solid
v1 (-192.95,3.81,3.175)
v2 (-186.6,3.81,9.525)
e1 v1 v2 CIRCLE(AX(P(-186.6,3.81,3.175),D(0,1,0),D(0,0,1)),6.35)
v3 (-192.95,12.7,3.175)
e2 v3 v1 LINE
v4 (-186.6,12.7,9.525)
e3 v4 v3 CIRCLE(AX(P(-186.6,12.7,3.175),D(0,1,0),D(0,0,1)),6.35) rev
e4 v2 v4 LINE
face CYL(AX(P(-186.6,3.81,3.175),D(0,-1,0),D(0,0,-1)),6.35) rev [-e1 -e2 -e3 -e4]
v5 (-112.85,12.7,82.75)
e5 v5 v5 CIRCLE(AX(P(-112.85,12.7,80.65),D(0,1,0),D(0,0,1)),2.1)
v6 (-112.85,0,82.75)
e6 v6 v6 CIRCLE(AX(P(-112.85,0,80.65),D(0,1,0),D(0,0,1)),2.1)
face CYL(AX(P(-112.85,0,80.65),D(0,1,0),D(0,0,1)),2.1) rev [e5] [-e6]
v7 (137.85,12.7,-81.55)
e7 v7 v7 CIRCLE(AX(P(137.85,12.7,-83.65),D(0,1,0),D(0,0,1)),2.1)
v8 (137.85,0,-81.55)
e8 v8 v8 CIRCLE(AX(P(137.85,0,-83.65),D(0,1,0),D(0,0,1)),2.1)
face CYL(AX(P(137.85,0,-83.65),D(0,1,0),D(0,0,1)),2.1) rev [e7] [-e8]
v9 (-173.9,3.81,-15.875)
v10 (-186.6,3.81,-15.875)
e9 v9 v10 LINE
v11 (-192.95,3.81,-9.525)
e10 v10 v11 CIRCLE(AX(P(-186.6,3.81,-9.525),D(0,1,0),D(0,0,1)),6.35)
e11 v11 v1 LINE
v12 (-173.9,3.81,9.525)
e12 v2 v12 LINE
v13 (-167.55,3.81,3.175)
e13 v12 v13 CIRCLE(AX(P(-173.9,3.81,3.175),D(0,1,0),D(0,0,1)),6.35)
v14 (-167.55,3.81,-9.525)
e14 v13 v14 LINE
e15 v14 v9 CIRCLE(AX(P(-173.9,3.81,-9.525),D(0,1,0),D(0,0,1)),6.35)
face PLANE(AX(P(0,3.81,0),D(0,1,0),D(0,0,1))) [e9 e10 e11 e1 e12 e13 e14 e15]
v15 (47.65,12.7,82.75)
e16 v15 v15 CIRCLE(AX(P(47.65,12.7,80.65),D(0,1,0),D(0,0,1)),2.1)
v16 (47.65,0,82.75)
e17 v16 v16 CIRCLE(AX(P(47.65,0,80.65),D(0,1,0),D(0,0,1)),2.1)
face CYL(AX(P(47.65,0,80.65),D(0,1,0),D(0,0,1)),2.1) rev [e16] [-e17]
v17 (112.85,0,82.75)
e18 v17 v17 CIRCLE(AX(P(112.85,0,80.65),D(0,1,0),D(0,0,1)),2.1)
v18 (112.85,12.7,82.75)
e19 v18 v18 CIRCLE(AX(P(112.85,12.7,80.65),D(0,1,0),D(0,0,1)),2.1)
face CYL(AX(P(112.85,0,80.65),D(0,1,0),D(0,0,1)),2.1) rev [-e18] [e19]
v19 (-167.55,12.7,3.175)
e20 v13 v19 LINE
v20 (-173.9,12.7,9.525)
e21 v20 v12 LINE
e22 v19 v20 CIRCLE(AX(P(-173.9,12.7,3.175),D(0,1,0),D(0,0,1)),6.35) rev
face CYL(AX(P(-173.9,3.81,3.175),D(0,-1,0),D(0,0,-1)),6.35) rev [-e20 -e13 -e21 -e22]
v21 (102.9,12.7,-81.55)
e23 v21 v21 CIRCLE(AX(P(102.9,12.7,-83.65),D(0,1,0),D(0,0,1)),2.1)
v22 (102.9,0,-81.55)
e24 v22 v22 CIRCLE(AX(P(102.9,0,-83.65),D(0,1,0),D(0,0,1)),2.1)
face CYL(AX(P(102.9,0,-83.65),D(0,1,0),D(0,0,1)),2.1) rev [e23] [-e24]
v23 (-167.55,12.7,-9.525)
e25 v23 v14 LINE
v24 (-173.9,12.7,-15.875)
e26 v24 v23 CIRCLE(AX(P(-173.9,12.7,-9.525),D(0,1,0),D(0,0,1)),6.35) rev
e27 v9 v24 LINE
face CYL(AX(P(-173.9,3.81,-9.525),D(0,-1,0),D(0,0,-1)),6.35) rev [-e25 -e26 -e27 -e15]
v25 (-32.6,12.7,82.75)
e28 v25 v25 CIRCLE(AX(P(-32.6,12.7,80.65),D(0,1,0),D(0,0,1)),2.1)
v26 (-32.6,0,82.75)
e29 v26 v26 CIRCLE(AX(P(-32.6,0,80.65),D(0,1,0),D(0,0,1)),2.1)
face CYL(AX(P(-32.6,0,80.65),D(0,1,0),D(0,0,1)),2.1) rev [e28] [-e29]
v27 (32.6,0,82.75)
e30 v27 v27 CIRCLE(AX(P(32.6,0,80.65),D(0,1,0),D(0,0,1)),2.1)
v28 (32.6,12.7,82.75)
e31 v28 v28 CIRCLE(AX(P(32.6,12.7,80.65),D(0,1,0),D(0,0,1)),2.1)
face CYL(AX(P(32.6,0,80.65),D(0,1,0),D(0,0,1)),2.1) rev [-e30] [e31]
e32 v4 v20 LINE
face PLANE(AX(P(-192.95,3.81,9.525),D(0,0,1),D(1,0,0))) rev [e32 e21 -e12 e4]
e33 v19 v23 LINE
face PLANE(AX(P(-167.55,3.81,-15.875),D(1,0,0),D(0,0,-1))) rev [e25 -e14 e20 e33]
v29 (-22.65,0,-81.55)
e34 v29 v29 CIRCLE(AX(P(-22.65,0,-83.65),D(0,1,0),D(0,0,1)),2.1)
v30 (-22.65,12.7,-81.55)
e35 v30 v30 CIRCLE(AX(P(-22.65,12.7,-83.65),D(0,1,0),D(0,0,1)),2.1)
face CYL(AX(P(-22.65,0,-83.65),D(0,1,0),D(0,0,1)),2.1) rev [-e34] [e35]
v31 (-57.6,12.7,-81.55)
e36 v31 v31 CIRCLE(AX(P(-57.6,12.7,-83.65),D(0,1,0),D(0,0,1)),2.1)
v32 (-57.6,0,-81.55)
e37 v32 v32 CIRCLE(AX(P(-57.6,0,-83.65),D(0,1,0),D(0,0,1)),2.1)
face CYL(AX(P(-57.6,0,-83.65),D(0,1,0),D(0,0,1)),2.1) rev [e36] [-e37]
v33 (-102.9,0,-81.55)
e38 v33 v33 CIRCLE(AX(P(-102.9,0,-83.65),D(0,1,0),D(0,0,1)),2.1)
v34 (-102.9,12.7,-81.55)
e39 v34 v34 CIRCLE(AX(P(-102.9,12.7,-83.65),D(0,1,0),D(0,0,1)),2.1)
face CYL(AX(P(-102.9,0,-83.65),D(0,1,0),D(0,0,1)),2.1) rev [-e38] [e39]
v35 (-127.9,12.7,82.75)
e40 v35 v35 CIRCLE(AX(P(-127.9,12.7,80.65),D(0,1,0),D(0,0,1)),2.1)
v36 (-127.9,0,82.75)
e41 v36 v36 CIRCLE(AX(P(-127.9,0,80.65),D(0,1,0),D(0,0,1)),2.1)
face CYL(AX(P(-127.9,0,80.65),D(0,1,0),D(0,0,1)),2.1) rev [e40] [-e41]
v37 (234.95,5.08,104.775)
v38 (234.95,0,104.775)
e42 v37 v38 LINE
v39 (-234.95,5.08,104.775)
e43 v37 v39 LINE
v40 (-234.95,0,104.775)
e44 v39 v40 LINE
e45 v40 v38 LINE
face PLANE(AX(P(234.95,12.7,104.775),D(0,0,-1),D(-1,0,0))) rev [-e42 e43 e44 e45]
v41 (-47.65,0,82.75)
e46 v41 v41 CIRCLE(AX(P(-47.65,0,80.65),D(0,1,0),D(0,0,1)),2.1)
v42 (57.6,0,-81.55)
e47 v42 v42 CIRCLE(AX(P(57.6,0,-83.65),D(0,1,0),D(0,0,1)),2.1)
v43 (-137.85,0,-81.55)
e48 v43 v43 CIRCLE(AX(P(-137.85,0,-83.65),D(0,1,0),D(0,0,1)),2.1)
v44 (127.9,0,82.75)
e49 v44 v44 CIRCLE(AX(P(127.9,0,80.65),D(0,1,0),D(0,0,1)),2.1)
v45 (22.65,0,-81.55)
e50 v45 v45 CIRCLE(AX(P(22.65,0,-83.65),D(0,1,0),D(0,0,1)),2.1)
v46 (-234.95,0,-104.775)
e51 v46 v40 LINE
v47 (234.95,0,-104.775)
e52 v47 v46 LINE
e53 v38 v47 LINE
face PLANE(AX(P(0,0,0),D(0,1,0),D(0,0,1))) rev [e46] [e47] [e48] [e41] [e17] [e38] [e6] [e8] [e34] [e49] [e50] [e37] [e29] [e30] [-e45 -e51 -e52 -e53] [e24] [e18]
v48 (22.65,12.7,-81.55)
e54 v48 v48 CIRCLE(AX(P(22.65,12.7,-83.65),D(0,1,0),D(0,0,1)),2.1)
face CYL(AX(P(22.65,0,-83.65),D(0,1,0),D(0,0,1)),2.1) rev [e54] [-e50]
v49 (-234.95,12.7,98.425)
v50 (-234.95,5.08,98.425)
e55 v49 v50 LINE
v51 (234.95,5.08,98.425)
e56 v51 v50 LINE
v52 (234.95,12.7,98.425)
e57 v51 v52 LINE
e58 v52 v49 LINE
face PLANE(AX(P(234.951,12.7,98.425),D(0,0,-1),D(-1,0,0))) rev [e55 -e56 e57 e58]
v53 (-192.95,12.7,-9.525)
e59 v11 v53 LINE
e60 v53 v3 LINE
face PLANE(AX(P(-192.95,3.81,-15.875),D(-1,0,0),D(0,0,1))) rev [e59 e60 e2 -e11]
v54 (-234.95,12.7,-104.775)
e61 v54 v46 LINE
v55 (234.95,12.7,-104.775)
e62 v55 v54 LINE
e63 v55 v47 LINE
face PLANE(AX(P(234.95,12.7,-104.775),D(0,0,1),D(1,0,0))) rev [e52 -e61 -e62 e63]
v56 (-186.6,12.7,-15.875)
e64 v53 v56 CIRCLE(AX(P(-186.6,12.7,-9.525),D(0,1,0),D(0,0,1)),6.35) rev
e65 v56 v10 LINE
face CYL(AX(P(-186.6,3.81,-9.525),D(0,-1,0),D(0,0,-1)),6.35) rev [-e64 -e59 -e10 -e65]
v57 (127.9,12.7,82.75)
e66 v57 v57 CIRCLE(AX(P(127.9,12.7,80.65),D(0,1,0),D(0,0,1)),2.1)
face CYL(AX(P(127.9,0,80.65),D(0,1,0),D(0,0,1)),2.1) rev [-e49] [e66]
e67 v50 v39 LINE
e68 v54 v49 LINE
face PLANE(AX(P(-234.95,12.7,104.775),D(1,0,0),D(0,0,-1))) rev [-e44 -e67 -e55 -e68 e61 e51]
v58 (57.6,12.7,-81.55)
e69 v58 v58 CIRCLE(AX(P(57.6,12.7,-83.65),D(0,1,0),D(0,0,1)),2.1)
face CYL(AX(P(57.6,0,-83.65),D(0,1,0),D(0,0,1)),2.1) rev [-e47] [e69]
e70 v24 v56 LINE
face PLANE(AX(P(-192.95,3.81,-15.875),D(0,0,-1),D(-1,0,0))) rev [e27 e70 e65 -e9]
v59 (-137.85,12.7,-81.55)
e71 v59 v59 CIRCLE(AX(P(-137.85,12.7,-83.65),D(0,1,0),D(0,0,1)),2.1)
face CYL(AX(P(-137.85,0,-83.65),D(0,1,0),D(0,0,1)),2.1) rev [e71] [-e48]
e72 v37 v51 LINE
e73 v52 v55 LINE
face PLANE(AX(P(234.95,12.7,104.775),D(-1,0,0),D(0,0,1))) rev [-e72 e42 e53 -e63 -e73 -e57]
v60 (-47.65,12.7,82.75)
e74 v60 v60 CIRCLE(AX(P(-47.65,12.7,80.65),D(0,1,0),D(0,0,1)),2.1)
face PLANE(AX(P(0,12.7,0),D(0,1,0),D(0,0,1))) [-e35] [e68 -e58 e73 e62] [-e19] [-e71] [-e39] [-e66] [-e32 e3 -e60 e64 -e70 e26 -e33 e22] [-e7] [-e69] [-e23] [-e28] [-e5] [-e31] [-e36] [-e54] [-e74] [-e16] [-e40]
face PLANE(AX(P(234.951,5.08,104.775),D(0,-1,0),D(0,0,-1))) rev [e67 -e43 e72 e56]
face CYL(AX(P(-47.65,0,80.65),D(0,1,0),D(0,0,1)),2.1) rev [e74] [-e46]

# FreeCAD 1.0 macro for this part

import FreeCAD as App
import Part
import Sketcher

V = App.Vector
Q = App.Units.Quantity


def edges_at(feature, points):
    """Names of the edges that pass closest to the given points."""
    edges = feature.Shape.Edges
    near = lambda p: min(range(len(edges)), key=lambda i: edges[i].distToShape(Part.Vertex(*p))[0])
    return sorted({f"Edge{near(p) + 1}" for p in points})


def add_polygon(sketch, points):
    """Adds a closed chain of lines whose ends are joined by coincident constraints."""
    first, n = sketch.GeometryCount, len(points)
    for a, b in zip(points, points[1:] + points[:1]):
        sketch.addGeometry(Part.LineSegment(App.Vector(*a, 0), App.Vector(*b, 0)), False)
    for i in range(n):
        sketch.addConstraint(Sketcher.Constraint("Coincident", first + i, 2, first + (i + 1) % n, 1))

doc = App.newDocument("Part")
body = doc.addObject("PartDesign::Body", "Body")

# Sketch on XZ plane
sketch1 = doc.addObject("Sketcher::SketchObject", "Sketch")
body.addObject(sketch1)
sketch1.AttachmentSupport = (doc.XZ_Plane, [""])
sketch1.MapMode = "FlatFace"
add_polygon(sketch1, [(-235, -105), (-235, 105), (235, 105), (235, -105)])  # lines 0-3
sketch1.addConstraint([
    Sketcher.Constraint("Vertical", 0),
    Sketcher.Constraint("Horizontal", 1),
    Sketcher.Constraint("Vertical", 2),
    Sketcher.Constraint("Horizontal", 3),
    Sketcher.Constraint("Symmetric", 0, 2, 2, 2, -1, 1),
    Sketcher.Constraint("DistanceX", 1, 1, 1, 2, Q("18.5 in")),
    Sketcher.Constraint("DistanceY", 0, 1, 0, 2, Q("8.25 in")),
])
pad1 = doc.addObject("PartDesign::Pad", "Pad")
body.addObject(pad1)
pad1.Profile = sketch1
pad1.Length = Q("0.5 in")
pad1.Reversed = True

# Sketch on XZ plane
sketch2 = doc.addObject("Sketcher::SketchObject", "Sketch001")
body.addObject(sketch2)
sketch2.AttachmentSupport = (doc.XZ_Plane, [""])
sketch2.MapMode = "FlatFace"
sketch2.AttachmentOffset = App.Placement(V(0, 0, -0.5 * 25.4), App.Rotation())
sketch2.addGeometry([
    Part.Circle(V(-102.9, -83.7, 0), V(0, 0, 1), 2.1),  # 0
    Part.Circle(V(-22.6, -83.7, 0), V(0, 0, 1), 2.1),  # 1
    Part.Circle(V(57.6, -83.7, 0), V(0, 0, 1), 2.1),  # 2
    Part.Circle(V(137.8, -83.7, 0), V(0, 0, 1), 2.1),  # 3
    Part.Circle(V(112.8, 80.7, 0), V(0, 0, 1), 2.1),  # 4
    Part.Circle(V(32.6, 80.7, 0), V(0, 0, 1), 2.1),  # 5
    Part.Circle(V(-47.6, 80.7, 0), V(0, 0, 1), 2.1),  # 6
    Part.Circle(V(-127.9, 80.7, 0), V(0, 0, 1), 2.1),  # 7
], False)
sketch2.addConstraint([
    Sketcher.Constraint("Equal", 0, 1),
    Sketcher.Constraint("Equal", 1, 2),
    Sketcher.Constraint("Equal", 2, 3),
    Sketcher.Constraint("Equal", 3, 4),
    Sketcher.Constraint("Equal", 4, 5),
    Sketcher.Constraint("Equal", 5, 6),
    Sketcher.Constraint("Equal", 6, 7),
    Sketcher.Constraint("Horizontal", 0, 3, 1, 3),
    Sketcher.Constraint("Horizontal", 1, 3, 2, 3),
    Sketcher.Constraint("Horizontal", 2, 3, 3, 3),
    Sketcher.Constraint("Horizontal", 4, 3, 5, 3),
    Sketcher.Constraint("Horizontal", 5, 3, 6, 3),
    Sketcher.Constraint("Horizontal", 6, 3, 7, 3),
    Sketcher.Constraint("Diameter", 0, Q("4.2 mm")),
    Sketcher.Constraint("DistanceX", 0, 3, -1, 1, Q("102.9 mm")),
    Sketcher.Constraint("DistanceY", 0, 3, -1, 1, Q("83.65 mm")),
    Sketcher.Constraint("DistanceX", 1, 3, -1, 1, Q("22.65 mm")),
    Sketcher.Constraint("DistanceX", -1, 1, 2, 3, Q("57.6 mm")),
    Sketcher.Constraint("DistanceX", -1, 1, 3, 3, Q("137.85 mm")),
    Sketcher.Constraint("DistanceX", -1, 1, 4, 3, Q("112.85 mm")),
    Sketcher.Constraint("DistanceY", -1, 1, 4, 3, Q("80.65 mm")),
    Sketcher.Constraint("DistanceX", -1, 1, 5, 3, Q("32.6 mm")),
    Sketcher.Constraint("DistanceX", 6, 3, -1, 1, Q("47.65 mm")),
    Sketcher.Constraint("DistanceX", 7, 3, -1, 1, Q("127.9 mm")),
])
pocket1 = doc.addObject("PartDesign::Pocket", "Pocket")
body.addObject(pocket1)
pocket1.Profile = sketch2
pocket1.Type = "ThroughAll"
pocket1.Reversed = True

# Sketch on XZ plane
sketch3 = doc.addObject("Sketcher::SketchObject", "Sketch002")
body.addObject(sketch3)
sketch3.AttachmentSupport = (doc.XZ_Plane, [""])
sketch3.MapMode = "FlatFace"
sketch3.AttachmentOffset = App.Placement(V(0, 0, -0.5 * 25.4), App.Rotation())
sketch3.addGeometry([
    Part.Circle(V(-137.8, -83.7, 0), V(0, 0, 1), 2.1),  # 0
    Part.Circle(V(-57.6, -83.7, 0), V(0, 0, 1), 2.1),  # 1
    Part.Circle(V(22.6, -83.7, 0), V(0, 0, 1), 2.1),  # 2
    Part.Circle(V(102.9, -83.7, 0), V(0, 0, 1), 2.1),  # 3
    Part.Circle(V(-112.8, 80.7, 0), V(0, 0, 1), 2.1),  # 4
    Part.Circle(V(-32.6, 80.7, 0), V(0, 0, 1), 2.1),  # 5
    Part.Circle(V(47.6, 80.7, 0), V(0, 0, 1), 2.1),  # 6
    Part.Circle(V(127.9, 80.7, 0), V(0, 0, 1), 2.1),  # 7
], False)
sketch3.addConstraint([
    Sketcher.Constraint("Equal", 0, 1),
    Sketcher.Constraint("Equal", 1, 2),
    Sketcher.Constraint("Equal", 2, 3),
    Sketcher.Constraint("Equal", 3, 4),
    Sketcher.Constraint("Equal", 4, 5),
    Sketcher.Constraint("Equal", 5, 6),
    Sketcher.Constraint("Equal", 6, 7),
    Sketcher.Constraint("Horizontal", 0, 3, 1, 3),
    Sketcher.Constraint("Horizontal", 1, 3, 2, 3),
    Sketcher.Constraint("Horizontal", 2, 3, 3, 3),
    Sketcher.Constraint("Horizontal", 4, 3, 5, 3),
    Sketcher.Constraint("Horizontal", 5, 3, 6, 3),
    Sketcher.Constraint("Horizontal", 6, 3, 7, 3),
    Sketcher.Constraint("Diameter", 0, Q("4.2 mm")),
    Sketcher.Constraint("DistanceX", 0, 3, -1, 1, Q("137.85 mm")),
    Sketcher.Constraint("DistanceY", 0, 3, -1, 1, Q("83.65 mm")),
    Sketcher.Constraint("DistanceX", 1, 3, -1, 1, Q("57.6 mm")),
    Sketcher.Constraint("DistanceX", -1, 1, 2, 3, Q("22.65 mm")),
    Sketcher.Constraint("DistanceX", -1, 1, 3, 3, Q("102.9 mm")),
    Sketcher.Constraint("DistanceX", 4, 3, -1, 1, Q("112.85 mm")),
    Sketcher.Constraint("DistanceY", -1, 1, 4, 3, Q("80.65 mm")),
    Sketcher.Constraint("DistanceX", 5, 3, -1, 1, Q("32.6 mm")),
    Sketcher.Constraint("DistanceX", -1, 1, 6, 3, Q("47.65 mm")),
    Sketcher.Constraint("DistanceX", -1, 1, 7, 3, Q("127.9 mm")),
])
pocket2 = doc.addObject("PartDesign::Pocket", "Pocket001")
body.addObject(pocket2)
pocket2.Profile = sketch3
pocket2.Type = "ThroughAll"
pocket2.Reversed = True

# Sketch on XZ plane
sketch4 = doc.addObject("Sketcher::SketchObject", "Sketch003")
body.addObject(sketch4)
sketch4.AttachmentSupport = (doc.XZ_Plane, [""])
sketch4.MapMode = "FlatFace"
sketch4.AttachmentOffset = App.Placement(V(0, 0, -0.5 * 25.4), App.Rotation())
add_polygon(sketch4, [(-193, -16), (-193, 10), (-168, 10), (-168, -16)])  # lines 0-3
sketch4.addConstraint([
    Sketcher.Constraint("Vertical", 0),
    Sketcher.Constraint("Horizontal", 1),
    Sketcher.Constraint("Vertical", 2),
    Sketcher.Constraint("Horizontal", 3),
    Sketcher.Constraint("Equal", 3, 0),
    Sketcher.Constraint("DistanceX", 1, 1, 1, 2, Q("1 in")),
    Sketcher.Constraint("DistanceY", -1, 1, 0, 2, Q("0.375 in")),
    Sketcher.Constraint("DistanceX", 0, 2, -1, 1, Q("192.95 mm")),
])
pocket3 = doc.addObject("PartDesign::Pocket", "Pocket002")
body.addObject(pocket3)
pocket3.Profile = sketch4
pocket3.Length = Q("0.35 in")
pocket3.Reversed = True

# Sketch on YZ plane
sketch5 = doc.addObject("Sketcher::SketchObject", "Sketch004")
body.addObject(sketch5)
sketch5.AttachmentSupport = (doc.YZ_Plane, [""])
sketch5.MapMode = "FlatFace"
sketch5.AttachmentOffset = App.Placement(V(0, 0, -9.25 * 25.4), App.Rotation())
add_polygon(sketch5, [(13, 98), (5, 98), (5, 105), (13, 105)])  # lines 0-3
sketch5.addConstraint([
    Sketcher.Constraint("Horizontal", 0),
    Sketcher.Constraint("Vertical", 1),
    Sketcher.Constraint("Horizontal", 2),
    Sketcher.Constraint("Vertical", 3),
    Sketcher.Constraint("DistanceX", 0, 2, 0, 1, Q("0.3 in")),
    Sketcher.Constraint("DistanceY", 1, 1, 1, 2, Q("0.25 in")),
    Sketcher.Constraint("DistanceX", -1, 1, 0, 2, Q("0.2 in")),
    Sketcher.Constraint("DistanceY", -1, 1, 0, 2, Q("3.875 in")),
])
pocket4 = doc.addObject("PartDesign::Pocket", "Pocket003")
body.addObject(pocket4)
pocket4.Profile = sketch5
pocket4.Type = "UpToFirst"
pocket4.Reversed = True
doc.recompute()

fillet = doc.addObject("PartDesign::Fillet", "Fillet")
body.addObject(fillet)
fillet.Base = (pocket4, edges_at(pocket4, [
    (-167.55, 8.255, -15.875),
    (-167.55, 8.255, 9.525),
    (-192.95, 8.255, 9.525),
    (-192.95, 8.255, -15.875),
]))
fillet.Radius = Q("0.25 in")

doc.recompute()
